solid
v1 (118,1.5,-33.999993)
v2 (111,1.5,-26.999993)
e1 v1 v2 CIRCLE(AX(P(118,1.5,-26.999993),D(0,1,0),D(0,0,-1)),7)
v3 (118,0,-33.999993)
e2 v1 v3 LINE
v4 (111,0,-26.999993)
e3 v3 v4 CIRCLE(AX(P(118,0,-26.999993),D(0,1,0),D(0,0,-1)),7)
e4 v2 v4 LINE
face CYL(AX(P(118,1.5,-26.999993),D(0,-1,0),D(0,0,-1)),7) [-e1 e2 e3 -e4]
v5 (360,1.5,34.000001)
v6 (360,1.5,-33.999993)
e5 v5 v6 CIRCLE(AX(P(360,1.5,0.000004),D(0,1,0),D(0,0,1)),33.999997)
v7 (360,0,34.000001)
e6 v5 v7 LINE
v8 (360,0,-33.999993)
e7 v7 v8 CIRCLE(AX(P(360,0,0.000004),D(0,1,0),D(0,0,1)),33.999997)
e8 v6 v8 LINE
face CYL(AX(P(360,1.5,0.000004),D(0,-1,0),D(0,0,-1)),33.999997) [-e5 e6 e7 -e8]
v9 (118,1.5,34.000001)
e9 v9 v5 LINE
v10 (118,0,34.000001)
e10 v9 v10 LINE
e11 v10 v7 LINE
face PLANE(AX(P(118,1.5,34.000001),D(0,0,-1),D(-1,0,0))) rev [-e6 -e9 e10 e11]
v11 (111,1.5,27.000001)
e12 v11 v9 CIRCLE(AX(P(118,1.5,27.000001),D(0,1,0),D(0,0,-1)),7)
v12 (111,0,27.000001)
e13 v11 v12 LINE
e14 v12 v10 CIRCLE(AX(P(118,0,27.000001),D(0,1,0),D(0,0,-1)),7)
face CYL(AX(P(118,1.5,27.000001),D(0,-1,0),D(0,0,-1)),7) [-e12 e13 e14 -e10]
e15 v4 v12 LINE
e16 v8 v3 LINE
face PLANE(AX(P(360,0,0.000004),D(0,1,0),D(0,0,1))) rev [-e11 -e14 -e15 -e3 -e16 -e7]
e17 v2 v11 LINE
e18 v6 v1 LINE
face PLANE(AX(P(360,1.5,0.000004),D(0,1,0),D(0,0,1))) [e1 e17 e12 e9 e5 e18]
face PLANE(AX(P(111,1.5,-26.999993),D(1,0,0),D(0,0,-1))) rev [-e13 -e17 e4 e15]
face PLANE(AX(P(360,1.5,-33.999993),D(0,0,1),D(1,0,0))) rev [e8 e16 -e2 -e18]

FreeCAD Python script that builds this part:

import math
import FreeCAD as App
import Part
import Sketcher

V = App.Vector
Q = App.Units.Quantity

doc = App.newDocument("Part")
body = doc.addObject("PartDesign::Body", "Body")

sketch1 = body.newObject("Sketcher::SketchObject", "Sketch")
sketch1.AttachmentSupport = (doc.getObject("XZ_Plane"), [""])
sketch1.MapMode = "FlatFace"
sketch1.addGeometry(Part.LineSegment(V(360, -33.999993, 0), V(118, -33.999993, 0)), False)
sketch1.addGeometry(Part.ArcOfCircle(Part.Circle(V(118, -26.999993, 0), V(0, 0, 1), 7), math.radians(-180), math.radians(-90)), False)
sketch1.addGeometry(Part.LineSegment(V(111, -26.999993, 0), V(111, 27.000001, 0)), False)
sketch1.addGeometry(Part.ArcOfCircle(Part.Circle(V(118, 27.000001, 0), V(0, 0, 1), 7), math.radians(90), math.radians(180)), False)
sketch1.addGeometry(Part.LineSegment(V(118, 34.000001, 0), V(360, 34.000001, 0)), False)
sketch1.addGeometry(Part.ArcOfCircle(Part.Circle(V(360, 0.000004, 0), V(0, 0, 1), 33.999997), math.radians(-90), math.radians(90)), False)
sketch1.addConstraint(Sketcher.Constraint("Tangent", 0, 2, 1, 2))
sketch1.addConstraint(Sketcher.Constraint("Tangent", 1, 1, 2, 1))
sketch1.addConstraint(Sketcher.Constraint("Tangent", 2, 2, 3, 2))
sketch1.addConstraint(Sketcher.Constraint("Tangent", 3, 1, 4, 1))
sketch1.addConstraint(Sketcher.Constraint("Tangent", 4, 2, 5, 2))
sketch1.addConstraint(Sketcher.Constraint("Tangent", 5, 1, 0, 1))
sketch1.addConstraint(Sketcher.Constraint("Horizontal", 0))
sketch1.addConstraint(Sketcher.Constraint("Vertical", 2))
sketch1.addConstraint(Sketcher.Constraint("Horizontal", 4))
sketch1.addConstraint(Sketcher.Constraint("Equal", 1, 3))
sketch1.addConstraint(Sketcher.Constraint("Radius", 1, Q("7 mm")))
sketch1.addConstraint(Sketcher.Constraint("DistanceX", 0, 2, 0, 1, Q("242 mm")))
sketch1.addConstraint(Sketcher.Constraint("DistanceX", -1, 1, 1, 3, Q("118 mm")))
sketch1.addConstraint(Sketcher.Constraint("DistanceY", -1, 1, 3, 3, Q("27.000001 mm")))
sketch1.addConstraint(Sketcher.Constraint("Radius", 5, Q("33.999997 mm")))
pad1 = body.newObject("PartDesign::Pad", "Pad")
pad1.Profile = sketch1
pad1.Length = 1.5
pad1.Reversed = True

doc.recompute()
